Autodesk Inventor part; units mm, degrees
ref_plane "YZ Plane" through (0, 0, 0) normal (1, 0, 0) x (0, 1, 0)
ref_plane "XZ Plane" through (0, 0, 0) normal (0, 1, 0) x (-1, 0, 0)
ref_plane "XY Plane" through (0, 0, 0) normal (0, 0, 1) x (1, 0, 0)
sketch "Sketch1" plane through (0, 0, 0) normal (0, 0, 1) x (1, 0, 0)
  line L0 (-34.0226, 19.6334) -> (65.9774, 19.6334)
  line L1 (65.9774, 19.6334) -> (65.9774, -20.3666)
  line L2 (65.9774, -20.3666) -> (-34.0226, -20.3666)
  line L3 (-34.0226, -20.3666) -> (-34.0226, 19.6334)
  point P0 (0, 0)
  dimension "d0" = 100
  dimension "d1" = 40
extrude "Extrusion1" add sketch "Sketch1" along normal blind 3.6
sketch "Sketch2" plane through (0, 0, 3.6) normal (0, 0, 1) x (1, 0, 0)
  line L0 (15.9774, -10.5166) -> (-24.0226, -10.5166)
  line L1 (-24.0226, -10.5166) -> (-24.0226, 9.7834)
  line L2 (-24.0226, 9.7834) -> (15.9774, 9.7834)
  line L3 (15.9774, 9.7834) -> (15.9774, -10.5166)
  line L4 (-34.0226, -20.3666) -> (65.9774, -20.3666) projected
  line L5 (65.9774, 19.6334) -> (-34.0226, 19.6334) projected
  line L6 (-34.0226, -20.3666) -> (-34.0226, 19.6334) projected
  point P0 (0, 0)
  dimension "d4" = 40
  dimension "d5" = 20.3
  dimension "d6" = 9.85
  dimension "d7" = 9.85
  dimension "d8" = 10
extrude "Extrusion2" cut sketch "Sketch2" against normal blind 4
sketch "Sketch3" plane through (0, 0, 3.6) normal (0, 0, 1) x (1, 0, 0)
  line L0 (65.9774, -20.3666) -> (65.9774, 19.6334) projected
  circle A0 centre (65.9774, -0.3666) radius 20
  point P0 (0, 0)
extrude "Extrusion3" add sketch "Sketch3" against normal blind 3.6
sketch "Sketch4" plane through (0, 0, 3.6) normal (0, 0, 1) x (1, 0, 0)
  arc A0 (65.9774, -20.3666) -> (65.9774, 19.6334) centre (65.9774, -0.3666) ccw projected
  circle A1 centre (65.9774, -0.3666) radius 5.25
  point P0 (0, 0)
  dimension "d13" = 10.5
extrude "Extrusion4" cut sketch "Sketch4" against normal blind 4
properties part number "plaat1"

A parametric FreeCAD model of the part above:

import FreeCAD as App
import Part
import Sketcher

V = App.Vector


def add_polygon(sketch, points):
    """Adds a closed chain of lines whose ends are joined by coincident constraints."""
    first, n = sketch.GeometryCount, len(points)
    for a, b in zip(points, points[1:] + points[:1]):
        sketch.addGeometry(Part.LineSegment(App.Vector(*a, 0), App.Vector(*b, 0)), False)
    for i in range(n):
        sketch.addConstraint(Sketcher.Constraint("Coincident", first + i, 2, first + (i + 1) % n, 1))

doc = App.newDocument("Part")
body = doc.addObject("PartDesign::Body", "Body")

# Sketch on XY plane
sketch1 = body.newObject("Sketcher::SketchObject", "Sketch")
sketch1.AttachmentSupport = (doc.getObject("XY_Plane"), [""])
sketch1.MapMode = "FlatFace"
add_polygon(sketch1, [(66, 20), (-34, 20), (-34, -20), (66, -20)])  # lines 0-3
sketch1.addConstraint(Sketcher.Constraint("Horizontal", 0))
sketch1.addConstraint(Sketcher.Constraint("Vertical", 1))
sketch1.addConstraint(Sketcher.Constraint("Horizontal", 2))
sketch1.addConstraint(Sketcher.Constraint("Vertical", 3))
sketch1.addConstraint(Sketcher.Constraint("DistanceX", 0, 2, 0, 1, 100.0))
sketch1.addConstraint(Sketcher.Constraint("DistanceY", 1, 2, 1, 1, 40.0))
sketch1.addConstraint(Sketcher.Constraint("DistanceX", 0, 2, -1, 1, 34.0226))
sketch1.addConstraint(Sketcher.Constraint("DistanceY", -1, 1, 0, 2, 19.6334))
pad1 = body.newObject("PartDesign::Pad", "Pad")
pad1.Profile = sketch1
pad1.Length = 3.6

# Sketch on XY plane
sketch2 = body.newObject("Sketcher::SketchObject", "Sketch001")
sketch2.AttachmentSupport = (doc.getObject("XY_Plane"), [""])
sketch2.MapMode = "FlatFace"
sketch2.AttachmentOffset = App.Placement(V(0, 0, 3.6), App.Rotation())
add_polygon(sketch2, [(-24, -11), (16, -11), (16, 10), (-24, 10)])  # lines 0-3
sketch2.addConstraint(Sketcher.Constraint("Horizontal", 0))
sketch2.addConstraint(Sketcher.Constraint("Vertical", 1))
sketch2.addConstraint(Sketcher.Constraint("Horizontal", 2))
sketch2.addConstraint(Sketcher.Constraint("Vertical", 3))
sketch2.addConstraint(Sketcher.Constraint("DistanceX", 0, 1, 0, 2, 40.0))
sketch2.addConstraint(Sketcher.Constraint("DistanceY", 1, 1, 1, 2, 20.3))
sketch2.addConstraint(Sketcher.Constraint("DistanceX", -1, 1, 0, 2, 15.9774))
sketch2.addConstraint(Sketcher.Constraint("DistanceY", 0, 2, -1, 1, 10.5166))
pocket1 = body.newObject("PartDesign::Pocket", "Pocket")
pocket1.Profile = sketch2
pocket1.Length = 4

# Sketch on XY plane
sketch3 = body.newObject("Sketcher::SketchObject", "Sketch002")
sketch3.AttachmentSupport = (doc.getObject("XY_Plane"), [""])
sketch3.MapMode = "FlatFace"
sketch3.AttachmentOffset = App.Placement(V(0, 0, 3.6), App.Rotation())
sketch3.addGeometry(Part.Circle(V(66, 0, 0), V(0, 0, 1), 20), False)
sketch3.addConstraint(Sketcher.Constraint("Diameter", 0, 40.0))
sketch3.addConstraint(Sketcher.Constraint("DistanceX", -1, 1, 0, 3, 65.9774))
sketch3.addConstraint(Sketcher.Constraint("DistanceY", 0, 3, -1, 1, 0.3666))
pad2 = body.newObject("PartDesign::Pad", "Pad001")
pad2.Profile = sketch3
pad2.Length = 3.6
pad2.Reversed = True

# Sketch on XY plane
sketch4 = body.newObject("Sketcher::SketchObject", "Sketch003")
sketch4.AttachmentSupport = (doc.getObject("XY_Plane"), [""])
sketch4.MapMode = "FlatFace"
sketch4.AttachmentOffset = App.Placement(V(0, 0, 3.6), App.Rotation())
sketch4.addGeometry(Part.Circle(V(66, 0, 0), V(0, 0, 1), 5), False)
sketch4.addConstraint(Sketcher.Constraint("Diameter", 0, 10.5))
sketch4.addConstraint(Sketcher.Constraint("DistanceX", -1, 1, 0, 3, 65.9774))
sketch4.addConstraint(Sketcher.Constraint("DistanceY", 0, 3, -1, 1, 0.3666))
pocket2 = body.newObject("PartDesign::Pocket", "Pocket001")
pocket2.Profile = sketch4
pocket2.Length = 4

doc.recompute()
